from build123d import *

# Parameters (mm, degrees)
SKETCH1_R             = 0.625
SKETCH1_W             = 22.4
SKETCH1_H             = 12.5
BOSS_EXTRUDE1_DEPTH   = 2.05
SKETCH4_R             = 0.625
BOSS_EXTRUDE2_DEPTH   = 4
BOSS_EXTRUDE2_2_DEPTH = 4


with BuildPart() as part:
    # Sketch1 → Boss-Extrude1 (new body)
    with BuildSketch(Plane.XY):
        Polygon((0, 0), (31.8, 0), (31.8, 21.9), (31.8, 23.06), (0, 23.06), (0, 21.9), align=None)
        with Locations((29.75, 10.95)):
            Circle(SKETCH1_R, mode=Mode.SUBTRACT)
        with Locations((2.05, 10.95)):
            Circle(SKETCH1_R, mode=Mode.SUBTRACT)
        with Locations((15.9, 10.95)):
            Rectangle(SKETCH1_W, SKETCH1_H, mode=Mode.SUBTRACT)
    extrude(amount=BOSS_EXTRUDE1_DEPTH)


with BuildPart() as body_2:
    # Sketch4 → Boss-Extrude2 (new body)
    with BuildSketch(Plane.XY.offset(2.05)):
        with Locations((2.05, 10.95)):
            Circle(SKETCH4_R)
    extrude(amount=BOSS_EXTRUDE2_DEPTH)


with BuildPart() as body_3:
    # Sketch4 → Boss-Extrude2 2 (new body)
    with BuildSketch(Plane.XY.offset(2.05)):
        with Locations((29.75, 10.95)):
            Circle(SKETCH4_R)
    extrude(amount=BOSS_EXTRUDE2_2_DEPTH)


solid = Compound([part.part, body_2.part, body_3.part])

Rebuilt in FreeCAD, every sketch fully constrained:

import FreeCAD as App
import Part
import Sketcher
Q = App.Units.Quantity

doc = App.newDocument("Part")
body = doc.addObject("PartDesign::Body", "Body")

sketch1 = doc.addObject("Sketcher::SketchObject", "Sketch")
body.addObject(sketch1)
sketch1.AttachmentSupport = (doc.XY_Plane, [""])
sketch1.MapMode = "FlatFace"
sketch1.addGeometry(Part.LineSegment(App.Vector(0, 0, 0), App.Vector(31.8, 0, 0)), False)
sketch1.addGeometry(Part.LineSegment(App.Vector(31.8, 0, 0), App.Vector(31.8, 23.1, 0)), False)
sketch1.addGeometry(Part.LineSegment(App.Vector(31.8, 23.1, 0), App.Vector(0, 23.1, 0)), False)
sketch1.addGeometry(Part.LineSegment(App.Vector(0, 23.1, 0), App.Vector(0, 0, 0)), False)
sketch1.addGeometry(Part.Circle(App.Vector(2, 10.9, 0), App.Vector(0, 0, 1), 0.6), False)
sketch1.addGeometry(Part.LineSegment(App.Vector(27.1, 4.7, 0), App.Vector(4.7, 4.7, 0)), False)
sketch1.addGeometry(Part.LineSegment(App.Vector(4.7, 4.7, 0), App.Vector(4.7, 17.2, 0)), False)
sketch1.addGeometry(Part.LineSegment(App.Vector(4.7, 17.2, 0), App.Vector(27.1, 17.2, 0)), False)
sketch1.addGeometry(Part.LineSegment(App.Vector(27.1, 17.2, 0), App.Vector(27.1, 4.7, 0)), False)
sketch1.addGeometry(Part.Circle(App.Vector(29.8, 10.9, 0), App.Vector(0, 0, 1), 0.6), False)
sketch1.addConstraint(Sketcher.Constraint("Coincident", 0, 2, 1, 1))
sketch1.addConstraint(Sketcher.Constraint("Coincident", 1, 2, 2, 1))
sketch1.addConstraint(Sketcher.Constraint("Coincident", 2, 2, 3, 1))
sketch1.addConstraint(Sketcher.Constraint("Coincident", 3, 2, 0, 1))
sketch1.addConstraint(Sketcher.Constraint("Coincident", 5, 2, 6, 1))
sketch1.addConstraint(Sketcher.Constraint("Coincident", 6, 2, 7, 1))
sketch1.addConstraint(Sketcher.Constraint("Coincident", 7, 2, 8, 1))
sketch1.addConstraint(Sketcher.Constraint("Coincident", 8, 2, 5, 1))
sketch1.addConstraint(Sketcher.Constraint("Horizontal", 0))
sketch1.addConstraint(Sketcher.Constraint("Vertical", 1))
sketch1.addConstraint(Sketcher.Constraint("Horizontal", 2))
sketch1.addConstraint(Sketcher.Constraint("Vertical", 3))
sketch1.addConstraint(Sketcher.Constraint("Horizontal", 5))
sketch1.addConstraint(Sketcher.Constraint("Vertical", 6))
sketch1.addConstraint(Sketcher.Constraint("Horizontal", 7))
sketch1.addConstraint(Sketcher.Constraint("Vertical", 8))
sketch1.addConstraint(Sketcher.Constraint("Coincident", 3, 2, -1, 1))
sketch1.addConstraint(Sketcher.Constraint("Equal", 4, 9))
sketch1.addConstraint(Sketcher.Constraint("Horizontal", 4, 3, 9, 3))
sketch1.addConstraint(Sketcher.Constraint("Diameter", 4, Q("1.25 mm")))
sketch1.addConstraint(Sketcher.Constraint("DistanceX", 0, 1, 0, 2, Q("31.8 mm")))
sketch1.addConstraint(Sketcher.Constraint("DistanceX", 5, 2, 5, 1, Q("22.4 mm")))
sketch1.addConstraint(Sketcher.Constraint("DistanceY", 6, 1, 6, 2, Q("12.5 mm")))
sketch1.addConstraint(Sketcher.Constraint("DistanceY", 1, 1, 1, 2, Q("23.06 mm")))
sketch1.addConstraint(Sketcher.Constraint("DistanceX", -1, 1, 5, 2, Q("4.7 mm")))
sketch1.addConstraint(Sketcher.Constraint("DistanceY", -1, 1, 5, 2, Q("4.7 mm")))
sketch1.addConstraint(Sketcher.Constraint("DistanceX", 4, 3, 9, 3, Q("27.7 mm")))
sketch1.addConstraint(Sketcher.Constraint("DistanceX", -1, 1, 4, 3, Q("2.05 mm")))
sketch1.addConstraint(Sketcher.Constraint("DistanceY", -1, 1, 4, 3, Q("10.95 mm")))
pad1 = doc.addObject("PartDesign::Pad", "Pad")
body.addObject(pad1)
pad1.Profile = sketch1
pad1.Length = 2.05
body2 = doc.addObject("PartDesign::Body", "Body001")

sketch2 = doc.addObject("Sketcher::SketchObject", "Sketch001")
body2.addObject(sketch2)
sketch2.AttachmentSupport = (doc.getObject("XY_Plane001"), [""])
sketch2.MapMode = "FlatFace"
sketch2.AttachmentOffset = App.Placement(App.Vector(0, 0, 2.05), App.Rotation())
sketch2.addGeometry(Part.Circle(App.Vector(2, 10.9, 0), App.Vector(0, 0, 1), 0.6), False)
sketch2.addConstraint(Sketcher.Constraint("Diameter", 0, Q("1.25 mm")))
sketch2.addConstraint(Sketcher.Constraint("DistanceX", -1, 1, 0, 3, Q("2.05 mm")))
sketch2.addConstraint(Sketcher.Constraint("DistanceY", -1, 1, 0, 3, Q("10.95 mm")))
pad2 = doc.addObject("PartDesign::Pad", "Pad001")
body2.addObject(pad2)
pad2.Profile = sketch2
pad2.Length = 4
body3 = doc.addObject("PartDesign::Body", "Body002")

sketch3 = doc.addObject("Sketcher::SketchObject", "Sketch002")
body3.addObject(sketch3)
sketch3.AttachmentSupport = (doc.getObject("XY_Plane002"), [""])
sketch3.MapMode = "FlatFace"
sketch3.AttachmentOffset = App.Placement(App.Vector(0, 0, 2.05), App.Rotation())
sketch3.addGeometry(Part.Circle(App.Vector(29.8, 10.9, 0), App.Vector(0, 0, 1), 0.6), False)
sketch3.addConstraint(Sketcher.Constraint("Diameter", 0, Q("1.25 mm")))
sketch3.addConstraint(Sketcher.Constraint("DistanceX", -1, 1, 0, 3, Q("29.75 mm")))
sketch3.addConstraint(Sketcher.Constraint("DistanceY", -1, 1, 0, 3, Q("10.95 mm")))
pad3 = doc.addObject("PartDesign::Pad", "Pad002")
body3.addObject(pad3)
pad3.Profile = sketch3
pad3.Length = 4

doc.recompute()
